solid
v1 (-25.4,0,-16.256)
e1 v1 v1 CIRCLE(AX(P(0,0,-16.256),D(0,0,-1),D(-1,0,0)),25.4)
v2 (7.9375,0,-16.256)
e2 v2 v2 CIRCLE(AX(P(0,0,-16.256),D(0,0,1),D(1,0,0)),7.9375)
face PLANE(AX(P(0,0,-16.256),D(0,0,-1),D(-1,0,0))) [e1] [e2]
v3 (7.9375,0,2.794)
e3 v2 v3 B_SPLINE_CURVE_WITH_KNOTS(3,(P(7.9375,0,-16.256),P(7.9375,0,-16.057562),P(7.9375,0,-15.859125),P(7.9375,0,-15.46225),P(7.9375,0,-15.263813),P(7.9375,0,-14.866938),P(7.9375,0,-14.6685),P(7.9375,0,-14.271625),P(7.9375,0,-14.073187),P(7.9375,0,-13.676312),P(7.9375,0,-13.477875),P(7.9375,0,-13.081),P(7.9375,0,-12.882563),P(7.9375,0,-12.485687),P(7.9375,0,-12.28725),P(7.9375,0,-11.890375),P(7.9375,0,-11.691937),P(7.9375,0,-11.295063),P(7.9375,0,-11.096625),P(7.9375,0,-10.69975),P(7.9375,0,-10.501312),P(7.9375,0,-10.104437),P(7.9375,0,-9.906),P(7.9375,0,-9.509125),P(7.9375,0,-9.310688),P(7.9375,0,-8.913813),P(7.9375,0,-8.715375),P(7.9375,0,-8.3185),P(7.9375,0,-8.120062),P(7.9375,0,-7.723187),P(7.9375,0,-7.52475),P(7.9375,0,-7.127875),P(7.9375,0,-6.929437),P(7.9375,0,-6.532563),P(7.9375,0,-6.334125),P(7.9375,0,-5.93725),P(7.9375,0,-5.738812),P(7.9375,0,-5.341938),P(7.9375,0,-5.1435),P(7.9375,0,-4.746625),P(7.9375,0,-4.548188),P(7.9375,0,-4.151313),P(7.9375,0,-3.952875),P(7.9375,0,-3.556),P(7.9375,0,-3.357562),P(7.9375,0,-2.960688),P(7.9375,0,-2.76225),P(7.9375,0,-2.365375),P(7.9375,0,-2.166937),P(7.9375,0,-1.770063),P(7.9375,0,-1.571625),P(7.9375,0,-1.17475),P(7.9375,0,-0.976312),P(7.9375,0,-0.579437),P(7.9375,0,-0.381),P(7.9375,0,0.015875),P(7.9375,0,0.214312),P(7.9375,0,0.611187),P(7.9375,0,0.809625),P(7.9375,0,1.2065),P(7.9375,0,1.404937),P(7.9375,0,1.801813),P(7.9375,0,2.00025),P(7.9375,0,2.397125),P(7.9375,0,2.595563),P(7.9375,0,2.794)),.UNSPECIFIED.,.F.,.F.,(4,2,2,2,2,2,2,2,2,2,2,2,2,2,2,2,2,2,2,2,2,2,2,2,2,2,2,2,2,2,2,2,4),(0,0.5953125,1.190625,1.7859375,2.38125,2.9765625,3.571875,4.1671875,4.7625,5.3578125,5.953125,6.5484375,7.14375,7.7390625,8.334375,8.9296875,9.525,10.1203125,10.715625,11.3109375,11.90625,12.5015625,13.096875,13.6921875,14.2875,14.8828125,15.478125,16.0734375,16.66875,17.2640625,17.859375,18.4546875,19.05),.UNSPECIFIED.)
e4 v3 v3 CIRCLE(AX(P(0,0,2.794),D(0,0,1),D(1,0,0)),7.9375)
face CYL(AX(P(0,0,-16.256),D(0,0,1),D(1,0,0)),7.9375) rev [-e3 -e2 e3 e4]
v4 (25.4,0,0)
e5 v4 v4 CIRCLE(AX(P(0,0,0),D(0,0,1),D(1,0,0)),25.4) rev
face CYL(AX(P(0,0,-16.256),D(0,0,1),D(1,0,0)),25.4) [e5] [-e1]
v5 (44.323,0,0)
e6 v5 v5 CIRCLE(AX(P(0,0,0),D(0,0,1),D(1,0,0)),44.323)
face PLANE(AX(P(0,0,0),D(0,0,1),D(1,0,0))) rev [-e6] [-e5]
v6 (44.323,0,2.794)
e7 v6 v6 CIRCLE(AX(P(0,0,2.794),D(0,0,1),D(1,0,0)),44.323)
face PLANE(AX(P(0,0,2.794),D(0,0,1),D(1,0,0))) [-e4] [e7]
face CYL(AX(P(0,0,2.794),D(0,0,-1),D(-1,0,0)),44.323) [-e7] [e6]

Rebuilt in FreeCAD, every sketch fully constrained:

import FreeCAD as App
import Part
import Sketcher
Q = App.Units.Quantity

doc = App.newDocument("Part")
params = doc.addObject("Spreadsheet::Sheet", "Params")
for row, (alias, value) in enumerate([
    ("sketch1_diameter", "3.49 in"),
    ("pad1_length", "0.11 in"),
    ("sketch2_diameter", "2 in"),
    ("pad2_length", "0.64 in"),
    ("sketch3_diameter", "0.625 in"),
], start=1):
    params.set(f"A{row}", alias)
    params.set(f"B{row}", "=" + value)
    params.setAlias(f"B{row}", alias)

body = doc.addObject("PartDesign::Body", "Body")

# Sketch on XY plane
sketch1 = doc.addObject("Sketcher::SketchObject", "Sketch")
body.addObject(sketch1)
sketch1.AttachmentSupport = (doc.XY_Plane, [""])
sketch1.MapMode = "FlatFace"
sketch1.addGeometry(Part.Circle(App.Vector(0, 0, 0), App.Vector(0, 0, 1), 44.323), False)
sketch1.addConstraint([
    Sketcher.Constraint("Coincident", 0, 3, -1, 1),
    Sketcher.Constraint("Diameter", 0, Q("3.49 in")),
])
sketch1.setExpression("Constraints[1]", "Params.sketch1_diameter")
pad1 = doc.addObject("PartDesign::Pad", "Pad")
body.addObject(pad1)
pad1.Profile = sketch1
pad1.setExpression("Length", "Params.pad1_length")

# Sketch on XY plane
sketch2 = doc.addObject("Sketcher::SketchObject", "Sketch001")
body.addObject(sketch2)
sketch2.AttachmentSupport = (doc.XY_Plane, [""])
sketch2.MapMode = "FlatFace"
sketch2.addGeometry(Part.Circle(App.Vector(0, 0, 0), App.Vector(0, 0, 1), 25.4), False)
sketch2.addConstraint([
    Sketcher.Constraint("Coincident", 0, 3, -1, 1),
    Sketcher.Constraint("Diameter", 0, Q("2 in")),
])
sketch2.setExpression("Constraints[1]", "Params.sketch2_diameter")
pad2 = doc.addObject("PartDesign::Pad", "Pad001")
body.addObject(pad2)
pad2.Profile = sketch2
pad2.setExpression("Length", "Params.pad2_length")
pad2.Reversed = True

# Sketch on XY plane
sketch3 = doc.addObject("Sketcher::SketchObject", "Sketch002")
body.addObject(sketch3)
sketch3.AttachmentSupport = (doc.XY_Plane, [""])
sketch3.MapMode = "FlatFace"
sketch3.AttachmentOffset = App.Placement(App.Vector(0, 0, 0.11 * 25.4), App.Rotation())
sketch3.addGeometry(Part.Circle(App.Vector(0, 0, 0), App.Vector(0, 0, 1), 7.9375), False)
sketch3.addConstraint([
    Sketcher.Constraint("Coincident", 0, 3, -1, 1),
    Sketcher.Constraint("Diameter", 0, Q("0.625 in")),
])
sketch3.setExpression("Constraints[1]", "Params.sketch3_diameter")
pocket1 = doc.addObject("PartDesign::Pocket", "Pocket")
body.addObject(pocket1)
pocket1.Profile = sketch3
pocket1.Type = "ThroughAll"

doc.recompute()
